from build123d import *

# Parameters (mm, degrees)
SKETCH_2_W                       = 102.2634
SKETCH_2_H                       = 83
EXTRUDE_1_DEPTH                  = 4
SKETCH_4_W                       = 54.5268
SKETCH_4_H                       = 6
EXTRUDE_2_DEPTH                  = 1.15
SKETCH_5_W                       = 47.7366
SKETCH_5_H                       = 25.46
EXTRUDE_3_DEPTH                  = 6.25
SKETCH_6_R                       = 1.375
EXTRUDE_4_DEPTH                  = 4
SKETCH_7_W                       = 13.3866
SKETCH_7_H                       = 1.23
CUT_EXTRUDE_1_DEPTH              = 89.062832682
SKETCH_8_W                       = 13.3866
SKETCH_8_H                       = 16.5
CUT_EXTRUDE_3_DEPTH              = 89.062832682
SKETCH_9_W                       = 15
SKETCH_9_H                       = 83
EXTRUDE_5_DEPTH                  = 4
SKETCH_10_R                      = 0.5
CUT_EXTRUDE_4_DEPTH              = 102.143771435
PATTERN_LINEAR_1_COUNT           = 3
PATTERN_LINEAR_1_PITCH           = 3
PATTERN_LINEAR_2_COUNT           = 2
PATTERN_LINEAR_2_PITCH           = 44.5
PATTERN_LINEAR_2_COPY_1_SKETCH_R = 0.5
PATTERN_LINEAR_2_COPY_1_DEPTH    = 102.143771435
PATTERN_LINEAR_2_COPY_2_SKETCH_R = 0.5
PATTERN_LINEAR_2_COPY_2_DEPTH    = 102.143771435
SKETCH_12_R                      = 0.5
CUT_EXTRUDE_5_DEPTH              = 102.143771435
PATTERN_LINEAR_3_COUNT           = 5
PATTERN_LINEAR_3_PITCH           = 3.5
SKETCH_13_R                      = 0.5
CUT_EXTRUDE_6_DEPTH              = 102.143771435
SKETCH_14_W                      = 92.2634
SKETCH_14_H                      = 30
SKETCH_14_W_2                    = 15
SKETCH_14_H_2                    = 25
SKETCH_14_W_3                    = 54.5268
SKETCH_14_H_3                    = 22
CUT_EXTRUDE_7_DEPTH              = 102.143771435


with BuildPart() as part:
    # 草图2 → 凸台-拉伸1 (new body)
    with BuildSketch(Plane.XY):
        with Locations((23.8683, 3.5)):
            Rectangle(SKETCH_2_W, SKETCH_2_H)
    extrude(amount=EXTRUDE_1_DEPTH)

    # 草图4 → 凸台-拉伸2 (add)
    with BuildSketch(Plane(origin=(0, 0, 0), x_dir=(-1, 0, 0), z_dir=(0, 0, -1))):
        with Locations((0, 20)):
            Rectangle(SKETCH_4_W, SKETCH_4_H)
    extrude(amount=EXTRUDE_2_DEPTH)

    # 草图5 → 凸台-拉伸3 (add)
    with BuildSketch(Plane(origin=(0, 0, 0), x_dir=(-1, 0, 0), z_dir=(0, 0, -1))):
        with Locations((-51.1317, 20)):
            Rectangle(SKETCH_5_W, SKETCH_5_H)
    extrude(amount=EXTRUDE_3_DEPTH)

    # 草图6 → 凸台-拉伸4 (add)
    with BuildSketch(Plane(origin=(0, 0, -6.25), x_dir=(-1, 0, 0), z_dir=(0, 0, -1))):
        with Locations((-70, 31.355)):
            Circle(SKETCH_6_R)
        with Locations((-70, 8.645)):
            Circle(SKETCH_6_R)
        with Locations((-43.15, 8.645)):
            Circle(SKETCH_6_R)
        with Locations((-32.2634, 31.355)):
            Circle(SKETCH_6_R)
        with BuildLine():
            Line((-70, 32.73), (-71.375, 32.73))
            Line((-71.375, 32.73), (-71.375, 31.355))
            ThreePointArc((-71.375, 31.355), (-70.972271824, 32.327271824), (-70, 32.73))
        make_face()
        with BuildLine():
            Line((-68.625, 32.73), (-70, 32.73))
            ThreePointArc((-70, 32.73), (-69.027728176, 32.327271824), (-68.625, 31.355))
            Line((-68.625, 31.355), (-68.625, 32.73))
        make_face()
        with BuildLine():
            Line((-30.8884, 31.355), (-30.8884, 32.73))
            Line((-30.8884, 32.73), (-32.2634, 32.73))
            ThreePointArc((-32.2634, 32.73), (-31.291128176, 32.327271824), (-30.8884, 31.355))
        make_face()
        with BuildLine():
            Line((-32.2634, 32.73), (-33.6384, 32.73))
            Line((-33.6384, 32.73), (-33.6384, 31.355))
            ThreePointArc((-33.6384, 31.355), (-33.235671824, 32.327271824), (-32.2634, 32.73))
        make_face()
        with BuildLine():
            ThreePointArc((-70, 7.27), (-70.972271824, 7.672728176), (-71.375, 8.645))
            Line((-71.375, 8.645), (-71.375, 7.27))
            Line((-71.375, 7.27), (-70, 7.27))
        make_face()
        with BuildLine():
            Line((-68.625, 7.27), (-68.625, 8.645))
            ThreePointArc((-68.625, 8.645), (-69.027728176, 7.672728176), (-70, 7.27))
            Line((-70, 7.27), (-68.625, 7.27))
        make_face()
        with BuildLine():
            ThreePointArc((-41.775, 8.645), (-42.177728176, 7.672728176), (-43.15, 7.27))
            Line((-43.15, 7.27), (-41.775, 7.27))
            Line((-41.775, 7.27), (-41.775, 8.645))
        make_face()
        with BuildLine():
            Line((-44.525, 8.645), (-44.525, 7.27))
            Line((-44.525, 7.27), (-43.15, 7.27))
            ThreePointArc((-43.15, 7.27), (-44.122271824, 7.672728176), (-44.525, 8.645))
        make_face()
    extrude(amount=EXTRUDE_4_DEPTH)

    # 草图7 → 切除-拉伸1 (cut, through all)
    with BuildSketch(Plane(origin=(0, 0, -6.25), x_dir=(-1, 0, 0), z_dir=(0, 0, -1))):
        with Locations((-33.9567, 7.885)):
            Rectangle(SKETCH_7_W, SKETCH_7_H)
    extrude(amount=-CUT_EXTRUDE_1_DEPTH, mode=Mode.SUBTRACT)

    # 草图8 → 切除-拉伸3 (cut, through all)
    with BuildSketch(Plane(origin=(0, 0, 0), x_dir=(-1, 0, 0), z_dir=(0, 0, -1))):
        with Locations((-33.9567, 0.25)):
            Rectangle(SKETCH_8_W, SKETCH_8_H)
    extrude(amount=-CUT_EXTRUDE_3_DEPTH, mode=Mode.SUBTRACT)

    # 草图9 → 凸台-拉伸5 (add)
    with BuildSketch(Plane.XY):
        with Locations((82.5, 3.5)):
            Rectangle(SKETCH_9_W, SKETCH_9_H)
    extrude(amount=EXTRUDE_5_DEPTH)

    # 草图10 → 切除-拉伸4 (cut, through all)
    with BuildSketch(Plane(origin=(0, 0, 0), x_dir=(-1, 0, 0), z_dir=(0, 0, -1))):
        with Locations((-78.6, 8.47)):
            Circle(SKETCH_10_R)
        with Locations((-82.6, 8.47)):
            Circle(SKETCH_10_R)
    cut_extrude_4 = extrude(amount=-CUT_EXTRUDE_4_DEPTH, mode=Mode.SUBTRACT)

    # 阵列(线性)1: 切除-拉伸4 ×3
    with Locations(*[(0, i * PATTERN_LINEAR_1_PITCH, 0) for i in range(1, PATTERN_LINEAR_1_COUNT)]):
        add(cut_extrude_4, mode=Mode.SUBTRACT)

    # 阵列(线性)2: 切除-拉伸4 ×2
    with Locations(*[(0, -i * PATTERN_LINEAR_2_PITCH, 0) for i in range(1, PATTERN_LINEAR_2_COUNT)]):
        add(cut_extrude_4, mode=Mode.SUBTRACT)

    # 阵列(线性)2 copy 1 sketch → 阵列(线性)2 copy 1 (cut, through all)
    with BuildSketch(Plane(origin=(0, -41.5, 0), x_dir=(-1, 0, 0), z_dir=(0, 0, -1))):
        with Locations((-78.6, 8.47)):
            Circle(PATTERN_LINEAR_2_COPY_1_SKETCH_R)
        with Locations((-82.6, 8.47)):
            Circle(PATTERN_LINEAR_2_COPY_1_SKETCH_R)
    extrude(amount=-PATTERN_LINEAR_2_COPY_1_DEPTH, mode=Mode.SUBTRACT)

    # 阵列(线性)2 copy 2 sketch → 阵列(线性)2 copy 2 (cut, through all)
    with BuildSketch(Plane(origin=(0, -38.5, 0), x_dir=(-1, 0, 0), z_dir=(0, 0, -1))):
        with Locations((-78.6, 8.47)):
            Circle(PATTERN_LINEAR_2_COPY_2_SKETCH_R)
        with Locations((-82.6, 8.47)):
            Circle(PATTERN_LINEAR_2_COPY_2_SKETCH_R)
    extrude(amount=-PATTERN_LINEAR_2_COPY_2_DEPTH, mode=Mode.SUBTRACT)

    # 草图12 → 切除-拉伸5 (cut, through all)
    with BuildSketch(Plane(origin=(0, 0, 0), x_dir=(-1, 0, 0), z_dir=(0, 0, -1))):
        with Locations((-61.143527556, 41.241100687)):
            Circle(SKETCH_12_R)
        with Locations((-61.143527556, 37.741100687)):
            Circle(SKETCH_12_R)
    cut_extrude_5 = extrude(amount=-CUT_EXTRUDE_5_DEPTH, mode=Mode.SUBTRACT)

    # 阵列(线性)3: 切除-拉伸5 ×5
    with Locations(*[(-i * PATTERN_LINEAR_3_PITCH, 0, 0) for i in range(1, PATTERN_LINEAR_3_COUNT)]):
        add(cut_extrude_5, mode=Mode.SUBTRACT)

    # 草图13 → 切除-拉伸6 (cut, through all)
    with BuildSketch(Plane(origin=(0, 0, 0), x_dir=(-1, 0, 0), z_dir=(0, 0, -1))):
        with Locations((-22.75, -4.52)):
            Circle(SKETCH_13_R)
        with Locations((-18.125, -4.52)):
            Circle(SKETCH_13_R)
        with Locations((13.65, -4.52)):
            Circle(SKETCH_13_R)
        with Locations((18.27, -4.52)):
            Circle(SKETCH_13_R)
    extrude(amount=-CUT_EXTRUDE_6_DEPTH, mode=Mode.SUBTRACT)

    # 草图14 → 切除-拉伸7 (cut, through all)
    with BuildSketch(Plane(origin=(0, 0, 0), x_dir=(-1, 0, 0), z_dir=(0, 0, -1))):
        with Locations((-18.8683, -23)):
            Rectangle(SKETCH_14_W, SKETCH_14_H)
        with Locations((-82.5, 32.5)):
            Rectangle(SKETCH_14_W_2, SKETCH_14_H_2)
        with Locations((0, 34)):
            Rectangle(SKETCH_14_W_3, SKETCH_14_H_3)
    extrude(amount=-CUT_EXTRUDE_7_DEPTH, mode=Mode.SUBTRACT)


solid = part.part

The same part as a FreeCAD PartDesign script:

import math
import FreeCAD as App
import Part
import Sketcher
from FreeCAD import Vector
Q = App.Units.Quantity


def add_polygon(sketch, points):
    """Adds a closed chain of lines whose ends are joined by coincident constraints."""
    first, n = sketch.GeometryCount, len(points)
    for a, b in zip(points, points[1:] + points[:1]):
        sketch.addGeometry(Part.LineSegment(App.Vector(*a, 0), App.Vector(*b, 0)), False)
    for i in range(n):
        sketch.addConstraint(Sketcher.Constraint("Coincident", first + i, 2, first + (i + 1) % n, 1))

doc = App.newDocument("Part")
body = doc.addObject("PartDesign::Body", "Body")

# Sketch on XY plane
sketch1 = body.newObject("Sketcher::SketchObject", "Sketch")
sketch1.AttachmentSupport = (doc.getObject("XY_Plane"), [""])
sketch1.MapMode = "FlatFace"
add_polygon(sketch1, [(-27, 45), (-27, -38), (75, -38), (75, 45)])  # lines 0-3
sketch1.addConstraint([
    Sketcher.Constraint("Vertical", 0),
    Sketcher.Constraint("Horizontal", 1),
    Sketcher.Constraint("Vertical", 2),
    Sketcher.Constraint("Horizontal", 3),
    Sketcher.Constraint("DistanceY", 0, 2, 0, 1, Q("83 mm")),
    Sketcher.Constraint("DistanceY", 0, 2, -1, 1, Q("38 mm")),
    Sketcher.Constraint("DistanceX", -1, 1, 1, 2, Q("75 mm")),
    Sketcher.Constraint("DistanceX", 1, 1, 1, 2, Q("102.2634 mm")),
])
pad1 = body.newObject("PartDesign::Pad", "Pad")
pad1.Profile = sketch1
pad1.Length = 4

# Sketch on XY plane
sketch2 = body.newObject("Sketcher::SketchObject", "Sketch001")
sketch2.AttachmentSupport = (doc.getObject("XY_Plane"), [""])
sketch2.MapMode = "FlatFace"
add_polygon(sketch2, [(27, 23), (27, 17), (-27, 17), (-27, 23)])  # lines 0-3
sketch2.addConstraint([
    Sketcher.Constraint("Vertical", 0),
    Sketcher.Constraint("Horizontal", 1),
    Sketcher.Constraint("Vertical", 2),
    Sketcher.Constraint("Horizontal", 3),
    Sketcher.Constraint("DistanceY", 0, 2, 0, 1, Q("6 mm")),
    Sketcher.Constraint("DistanceY", -1, 1, 0, 2, Q("17 mm")),
    Sketcher.Constraint("DistanceX", 1, 2, 1, 1, Q("54.5268 mm")),
    Sketcher.Constraint("DistanceX", -1, 1, 0, 2, Q("27.2634 mm")),
])
pad2 = body.newObject("PartDesign::Pad", "Pad001")
pad2.Profile = sketch2
pad2.Length = 1.15
pad2.Reversed = True

# Sketch on XY plane
sketch3 = body.newObject("Sketcher::SketchObject", "Sketch002")
sketch3.AttachmentSupport = (doc.getObject("XY_Plane"), [""])
sketch3.MapMode = "FlatFace"
add_polygon(sketch3, [(75, 33), (75, 7), (27, 7), (27, 33)])  # lines 0-3
sketch3.addConstraint([
    Sketcher.Constraint("Vertical", 0),
    Sketcher.Constraint("Horizontal", 1),
    Sketcher.Constraint("Vertical", 2),
    Sketcher.Constraint("Horizontal", 3),
    Sketcher.Constraint("DistanceX", -1, 1, 0, 2, Q("75 mm")),
    Sketcher.Constraint("DistanceY", 0, 2, 0, 1, Q("25.46 mm")),
    Sketcher.Constraint("DistanceY", -1, 1, 0, 2, Q("7.27 mm")),
    Sketcher.Constraint("DistanceX", 1, 2, 1, 1, Q("47.7366 mm")),
])
pad3 = body.newObject("PartDesign::Pad", "Pad002")
pad3.Profile = sketch3
pad3.Length = 6.25
pad3.Reversed = True

# Sketch on XY plane
sketch4 = body.newObject("Sketcher::SketchObject", "Sketch003")
sketch4.AttachmentSupport = (doc.getObject("XY_Plane"), [""])
sketch4.MapMode = "FlatFace"
sketch4.AttachmentOffset = App.Placement(Vector(0, 0, -6.25), App.Rotation())
sketch4.addGeometry([
    Part.LineSegment(Vector(71.4, 32.7, 0), Vector(71.4, 31.4, 0)),  # 0
    Part.ArcOfCircle(Part.Circle(Vector(70, 31.4, 0), Vector(0, 0, 1), 1.4), math.radians(180), math.radians(360)),  # 1
    Part.LineSegment(Vector(68.6, 31.4, 0), Vector(68.6, 32.7, 0)),  # 2
    Part.LineSegment(Vector(68.6, 32.7, 0), Vector(71.4, 32.7, 0)),  # 3
    Part.LineSegment(Vector(71.4, 8.6, 0), Vector(71.4, 7.3, 0)),  # 4
    Part.LineSegment(Vector(71.4, 7.3, 0), Vector(68.6, 7.3, 0)),  # 5
    Part.LineSegment(Vector(68.6, 7.3, 0), Vector(68.6, 8.6, 0)),  # 6
    Part.ArcOfCircle(Part.Circle(Vector(70, 8.6, 0), Vector(0, 0, 1), 1.4), math.radians(0), math.radians(180)),  # 7
    Part.ArcOfCircle(Part.Circle(Vector(43.1, 8.6, 0), Vector(0, 0, 1), 1.4), math.radians(0), math.radians(180)),  # 8
    Part.LineSegment(Vector(44.5, 8.6, 0), Vector(44.5, 7.3, 0)),  # 9
    Part.LineSegment(Vector(44.5, 7.3, 0), Vector(41.8, 7.3, 0)),  # 10
    Part.LineSegment(Vector(41.8, 7.3, 0), Vector(41.8, 8.6, 0)),  # 11
    Part.ArcOfCircle(Part.Circle(Vector(32.3, 31.4, 0), Vector(0, 0, 1), 1.4), math.radians(180), math.radians(360)),  # 12
    Part.LineSegment(Vector(30.9, 31.4, 0), Vector(30.9, 32.7, 0)),  # 13
    Part.LineSegment(Vector(30.9, 32.7, 0), Vector(33.6, 32.7, 0)),  # 14
    Part.LineSegment(Vector(33.6, 32.7, 0), Vector(33.6, 31.4, 0)),  # 15
], False)
sketch4.addConstraint([
    Sketcher.Constraint("Tangent", 0, 2, 1, 2),
    Sketcher.Constraint("Tangent", 1, 1, 2, 1),
    Sketcher.Constraint("Coincident", 2, 2, 3, 1),
    Sketcher.Constraint("Coincident", 3, 2, 0, 1),
    Sketcher.Constraint("Coincident", 4, 2, 5, 1),
    Sketcher.Constraint("Coincident", 5, 2, 6, 1),
    Sketcher.Constraint("Tangent", 6, 2, 7, 2),
    Sketcher.Constraint("Tangent", 7, 1, 4, 1),
    Sketcher.Constraint("Tangent", 8, 1, 9, 1),
    Sketcher.Constraint("Coincident", 9, 2, 10, 1),
    Sketcher.Constraint("Coincident", 10, 2, 11, 1),
    Sketcher.Constraint("Tangent", 11, 2, 8, 2),
    Sketcher.Constraint("Tangent", 12, 1, 13, 1),
    Sketcher.Constraint("Coincident", 13, 2, 14, 1),
    Sketcher.Constraint("Coincident", 14, 2, 15, 1),
    Sketcher.Constraint("Tangent", 15, 2, 12, 2),
    Sketcher.Constraint("Vertical", 0),
    Sketcher.Constraint("Vertical", 2),
    Sketcher.Constraint("Horizontal", 3),
    Sketcher.Constraint("Vertical", 4),
    Sketcher.Constraint("Horizontal", 5),
    Sketcher.Constraint("Vertical", 6),
    Sketcher.Constraint("Vertical", 9),
    Sketcher.Constraint("Horizontal", 10),
    Sketcher.Constraint("Vertical", 11),
    Sketcher.Constraint("Vertical", 13),
    Sketcher.Constraint("Horizontal", 14),
    Sketcher.Constraint("Vertical", 15),
    Sketcher.Constraint("Equal", 1, 7),
    Sketcher.Constraint("Equal", 7, 8),
    Sketcher.Constraint("Equal", 8, 12),
    Sketcher.Constraint("Horizontal", 7, 3, 8, 3),
    Sketcher.Constraint("Horizontal", 1, 3, 12, 3),
    Sketcher.Constraint("Horizontal", 5, 2, 9, 2),
    Sketcher.Constraint("Horizontal", 3, 2, 13, 2),
    Sketcher.Constraint("Vertical", 1, 3, 7, 3),
    Sketcher.Constraint("Equal", 2, 4),
    Sketcher.Constraint("DistanceX", -1, 1, 1, 3, Q("70 mm")),
    Sketcher.Constraint("Radius", 1, Q("1.375 mm")),
    Sketcher.Constraint("DistanceX", 8, 1, 6, 2, Q("24.1 mm")),
    Sketcher.Constraint("DistanceY", 0, 2, 0, 1, Q("1.375 mm")),
    Sketcher.Constraint("DistanceY", -1, 1, 2, 2, Q("32.73 mm")),
    Sketcher.Constraint("DistanceY", -1, 1, 4, 2, Q("7.27 mm")),
    Sketcher.Constraint("DistanceX", -1, 1, 12, 3, Q("32.2634 mm")),
])
pad4 = body.newObject("PartDesign::Pad", "Pad003")
pad4.Profile = sketch4
pad4.Length = 4
pad4.Reversed = True

# Sketch on XY plane
sketch5 = body.newObject("Sketcher::SketchObject", "Sketch004")
sketch5.AttachmentSupport = (doc.getObject("XY_Plane"), [""])
sketch5.MapMode = "FlatFace"
sketch5.AttachmentOffset = App.Placement(Vector(0, 0, -6.25), App.Rotation())
add_polygon(sketch5, [(40.6, 8.5), (40.6, 7.3), (27.3, 7.3), (27.3, 8.5)])  # lines 0-3
sketch5.addConstraint([
    Sketcher.Constraint("Vertical", 0),
    Sketcher.Constraint("Horizontal", 1),
    Sketcher.Constraint("Vertical", 2),
    Sketcher.Constraint("Horizontal", 3),
    Sketcher.Constraint("DistanceY", 0, 2, 0, 1, Q("1.23 mm")),
    Sketcher.Constraint("DistanceY", -1, 1, 2, 2, Q("8.5 mm")),
    Sketcher.Constraint("DistanceX", -1, 1, 0, 2, Q("40.65 mm")),
    Sketcher.Constraint("DistanceX", 1, 2, 1, 1, Q("13.3866 mm")),
])
pocket1 = body.newObject("PartDesign::Pocket", "Pocket")
pocket1.Profile = sketch5
pocket1.Type = "ThroughAll"
pocket1.Reversed = True

# Sketch on XY plane
sketch6 = body.newObject("Sketcher::SketchObject", "Sketch005")
sketch6.AttachmentSupport = (doc.getObject("XY_Plane"), [""])
sketch6.MapMode = "FlatFace"
add_polygon(sketch6, [(41, 8), (41, -8), (27, -8), (27, 8)])  # lines 0-3
sketch6.addConstraint([
    Sketcher.Constraint("Vertical", 0),
    Sketcher.Constraint("Horizontal", 1),
    Sketcher.Constraint("Vertical", 2),
    Sketcher.Constraint("Horizontal", 3),
    Sketcher.Constraint("DistanceY", 0, 2, 0, 1, Q("16.5 mm")),
    Sketcher.Constraint("DistanceY", 0, 2, -1, 1, Q("8 mm")),
    Sketcher.Constraint("DistanceX", -1, 1, 0, 2, Q("40.65 mm")),
    Sketcher.Constraint("DistanceX", 1, 2, 1, 1, Q("13.3866 mm")),
])
pocket2 = body.newObject("PartDesign::Pocket", "Pocket001")
pocket2.Profile = sketch6
pocket2.Type = "ThroughAll"
pocket2.Reversed = True

# Sketch on XY plane
sketch7 = body.newObject("Sketcher::SketchObject", "Sketch006")
sketch7.AttachmentSupport = (doc.getObject("XY_Plane"), [""])
sketch7.MapMode = "FlatFace"
add_polygon(sketch7, [(75, 45), (75, -38), (90, -38), (90, 45)])  # lines 0-3
sketch7.addConstraint([
    Sketcher.Constraint("Vertical", 0),
    Sketcher.Constraint("Horizontal", 1),
    Sketcher.Constraint("Vertical", 2),
    Sketcher.Constraint("Horizontal", 3),
    Sketcher.Constraint("DistanceX", 1, 1, 1, 2, Q("15 mm")),
    Sketcher.Constraint("DistanceY", 0, 2, 0, 1, Q("83 mm")),
    Sketcher.Constraint("DistanceX", -1, 1, 0, 2, Q("75 mm")),
    Sketcher.Constraint("DistanceY", 0, 2, -1, 1, Q("38 mm")),
])
pad5 = body.newObject("PartDesign::Pad", "Pad004")
pad5.Profile = sketch7
pad5.Length = 4

# Sketch on XY plane
sketch8 = body.newObject("Sketcher::SketchObject", "Sketch007")
sketch8.AttachmentSupport = (doc.getObject("XY_Plane"), [""])
sketch8.MapMode = "FlatFace"
sketch8.addGeometry([
    Part.Circle(Vector(78.6, 8.5, 0), Vector(0, 0, 1), 0.5),
    Part.Circle(Vector(82.6, 8.5, 0), Vector(0, 0, 1), 0.5),
], False)
sketch8.addConstraint([
    Sketcher.Constraint("Equal", 0, 1),
    Sketcher.Constraint("Horizontal", 0, 3, 1, 3),
    Sketcher.Constraint("Diameter", 0, Q("1 mm")),
    Sketcher.Constraint("DistanceX", 0, 3, 1, 3, Q("4 mm")),
    Sketcher.Constraint("DistanceX", -1, 1, 0, 3, Q("78.6 mm")),
    Sketcher.Constraint("DistanceY", -1, 1, 0, 3, Q("8.47 mm")),
])
pocket3 = body.newObject("PartDesign::Pocket", "Pocket002")
pocket3.Profile = sketch8
pocket3.Type = "ThroughAll"
pocket3.Reversed = True
doc.recompute()

linearpattern = body.newObject("PartDesign::LinearPattern", "LinearPattern")
linearpattern.Originals = [pocket3]
linearpattern.Direction = (doc.getObject("Y_Axis"), [""])
linearpattern.Mode = "offset"
linearpattern.Offset = 3
linearpattern.Occurrences = 3
body.Tip = linearpattern
doc.recompute()

linearpattern2 = body.newObject("PartDesign::LinearPattern", "LinearPattern001")
linearpattern2.Originals = [pocket3]
linearpattern2.Direction = (doc.getObject("Y_Axis"), [""])
linearpattern2.Mode = "offset"
linearpattern2.Offset = 44.5
linearpattern2.Occurrences = 2
linearpattern2.Reversed = True
body.Tip = linearpattern2

# Sketch on XY plane
sketch9 = body.newObject("Sketcher::SketchObject", "Sketch008")
sketch9.AttachmentSupport = (doc.getObject("XY_Plane"), [""])
sketch9.MapMode = "FlatFace"
sketch9.addGeometry([
    Part.Circle(Vector(78.6, -33, 0), Vector(0, 0, 1), 0.5),
    Part.Circle(Vector(82.6, -33, 0), Vector(0, 0, 1), 0.5),
], False)
sketch9.addConstraint([
    Sketcher.Constraint("Equal", 0, 1),
    Sketcher.Constraint("Horizontal", 0, 3, 1, 3),
    Sketcher.Constraint("Diameter", 0, Q("1 mm")),
    Sketcher.Constraint("DistanceX", 0, 3, 1, 3, Q("4 mm")),
    Sketcher.Constraint("DistanceX", -1, 1, 0, 3, Q("78.6 mm")),
    Sketcher.Constraint("DistanceY", 0, 3, -1, 1, Q("33.03 mm")),
])
pocket4 = body.newObject("PartDesign::Pocket", "Pocket003")
pocket4.Profile = sketch9
pocket4.Type = "ThroughAll"
pocket4.Reversed = True

# Sketch on XY plane
sketch10 = body.newObject("Sketcher::SketchObject", "Sketch009")
sketch10.AttachmentSupport = (doc.getObject("XY_Plane"), [""])
sketch10.MapMode = "FlatFace"
sketch10.addGeometry([
    Part.Circle(Vector(78.6, -30, 0), Vector(0, 0, 1), 0.5),
    Part.Circle(Vector(82.6, -30, 0), Vector(0, 0, 1), 0.5),
], False)
sketch10.addConstraint([
    Sketcher.Constraint("Equal", 0, 1),
    Sketcher.Constraint("Horizontal", 0, 3, 1, 3),
    Sketcher.Constraint("Diameter", 0, Q("1 mm")),
    Sketcher.Constraint("DistanceX", 0, 3, 1, 3, Q("4 mm")),
    Sketcher.Constraint("DistanceX", -1, 1, 0, 3, Q("78.6 mm")),
    Sketcher.Constraint("DistanceY", 0, 3, -1, 1, Q("30.03 mm")),
])
pocket5 = body.newObject("PartDesign::Pocket", "Pocket004")
pocket5.Profile = sketch10
pocket5.Type = "ThroughAll"
pocket5.Reversed = True

# Sketch on XY plane
sketch11 = body.newObject("Sketcher::SketchObject", "Sketch010")
sketch11.AttachmentSupport = (doc.getObject("XY_Plane"), [""])
sketch11.MapMode = "FlatFace"
sketch11.addGeometry([
    Part.Circle(Vector(61.1, 41.2, 0), Vector(0, 0, 1), 0.5),
    Part.Circle(Vector(61.1, 37.7, 0), Vector(0, 0, 1), 0.5),
], False)
sketch11.addConstraint([
    Sketcher.Constraint("Equal", 0, 1),
    Sketcher.Constraint("Vertical", 0, 3, 1, 3),
    Sketcher.Constraint("Diameter", 0, Q("1 mm")),
    Sketcher.Constraint("DistanceY", 1, 3, 0, 3, Q("3.5 mm")),
    Sketcher.Constraint("DistanceY", -1, 1, 0, 3, Q("41.241101 mm")),
    Sketcher.Constraint("DistanceX", -1, 1, 0, 3, Q("61.143528 mm")),
])
pocket6 = body.newObject("PartDesign::Pocket", "Pocket005")
pocket6.Profile = sketch11
pocket6.Type = "ThroughAll"
pocket6.Reversed = True
doc.recompute()

linearpattern3 = body.newObject("PartDesign::LinearPattern", "LinearPattern002")
linearpattern3.Originals = [pocket6]
linearpattern3.Direction = (doc.getObject("X_Axis"), [""])
linearpattern3.Mode = "offset"
linearpattern3.Offset = 3.5
linearpattern3.Occurrences = 5
linearpattern3.Reversed = True
body.Tip = linearpattern3

# Sketch on XY plane
sketch12 = body.newObject("Sketcher::SketchObject", "Sketch011")
sketch12.AttachmentSupport = (doc.getObject("XY_Plane"), [""])
sketch12.MapMode = "FlatFace"
sketch12.addGeometry([
    Part.Circle(Vector(22.8, -4.5, 0), Vector(0, 0, 1), 0.5),
    Part.Circle(Vector(18.1, -4.5, 0), Vector(0, 0, 1), 0.5),
    Part.Circle(Vector(-13.7, -4.5, 0), Vector(0, 0, 1), 0.5),
    Part.Circle(Vector(-18.3, -4.5, 0), Vector(0, 0, 1), 0.5),
], False)
sketch12.addConstraint([
    Sketcher.Constraint("Equal", 0, 1),
    Sketcher.Constraint("Equal", 1, 2),
    Sketcher.Constraint("Equal", 2, 3),
    Sketcher.Constraint("Horizontal", 0, 3, 1, 3),
    Sketcher.Constraint("Horizontal", 1, 3, 2, 3),
    Sketcher.Constraint("Horizontal", 2, 3, 3, 3),
    Sketcher.Constraint("Diameter", 0, Q("1 mm")),
    Sketcher.Constraint("DistanceX", 2, 3, 0, 3, Q("36.4 mm")),
    Sketcher.Constraint("DistanceX", -1, 1, 0, 3, Q("22.75 mm")),
    Sketcher.Constraint("DistanceY", 0, 3, -1, 1, Q("4.52 mm")),
    Sketcher.Constraint("DistanceX", 3, 3, -1, 1, Q("18.27 mm")),
    Sketcher.Constraint("DistanceX", -1, 1, 1, 3, Q("18.125 mm")),
])
pocket7 = body.newObject("PartDesign::Pocket", "Pocket006")
pocket7.Profile = sketch12
pocket7.Type = "ThroughAll"
pocket7.Reversed = True

# Sketch on XY plane
sketch13 = body.newObject("Sketcher::SketchObject", "Sketch012")
sketch13.AttachmentSupport = (doc.getObject("XY_Plane"), [""])
sketch13.MapMode = "FlatFace"
add_polygon(sketch13, [(65, -8), (65, -38), (-27, -38), (-27, -8)])  # lines 0-3
add_polygon(sketch13, [(90, 45), (90, 20), (75, 20), (75, 45)])  # lines 4-7
add_polygon(sketch13, [(27, 45), (27, 23), (-27, 23), (-27, 45)])  # lines 8-11
sketch13.addConstraint([
    Sketcher.Constraint("Vertical", 0),
    Sketcher.Constraint("Horizontal", 1),
    Sketcher.Constraint("Vertical", 2),
    Sketcher.Constraint("Horizontal", 3),
    Sketcher.Constraint("Vertical", 4),
    Sketcher.Constraint("Horizontal", 5),
    Sketcher.Constraint("Vertical", 6),
    Sketcher.Constraint("Horizontal", 7),
    Sketcher.Constraint("Vertical", 8),
    Sketcher.Constraint("Horizontal", 9),
    Sketcher.Constraint("Vertical", 10),
    Sketcher.Constraint("Horizontal", 11),
    Sketcher.Constraint("Horizontal", 7, 2, 10, 2),
    Sketcher.Constraint("Vertical", 2, 2, 9, 2),
    Sketcher.Constraint("DistanceX", 5, 2, 5, 1, Q("15 mm")),
    Sketcher.Constraint("DistanceY", 0, 2, 0, 1, Q("30 mm")),
    Sketcher.Constraint("DistanceY", 4, 2, 4, 1, Q("25 mm")),
    Sketcher.Constraint("DistanceY", 8, 2, 8, 1, Q("22 mm")),
    Sketcher.Constraint("DistanceX", -1, 1, 0, 2, Q("65 mm")),
    Sketcher.Constraint("DistanceY", 0, 2, -1, 1, Q("38 mm")),
    Sketcher.Constraint("DistanceX", -1, 1, 4, 2, Q("90 mm")),
    Sketcher.Constraint("DistanceY", -1, 1, 4, 2, Q("20 mm")),
    Sketcher.Constraint("DistanceX", 1, 2, 1, 1, Q("92.2634 mm")),
    Sketcher.Constraint("DistanceX", 9, 2, 9, 1, Q("54.5268 mm")),
])
pocket8 = body.newObject("PartDesign::Pocket", "Pocket007")
pocket8.Profile = sketch13
pocket8.Type = "ThroughAll"
pocket8.Reversed = True

doc.recompute()
